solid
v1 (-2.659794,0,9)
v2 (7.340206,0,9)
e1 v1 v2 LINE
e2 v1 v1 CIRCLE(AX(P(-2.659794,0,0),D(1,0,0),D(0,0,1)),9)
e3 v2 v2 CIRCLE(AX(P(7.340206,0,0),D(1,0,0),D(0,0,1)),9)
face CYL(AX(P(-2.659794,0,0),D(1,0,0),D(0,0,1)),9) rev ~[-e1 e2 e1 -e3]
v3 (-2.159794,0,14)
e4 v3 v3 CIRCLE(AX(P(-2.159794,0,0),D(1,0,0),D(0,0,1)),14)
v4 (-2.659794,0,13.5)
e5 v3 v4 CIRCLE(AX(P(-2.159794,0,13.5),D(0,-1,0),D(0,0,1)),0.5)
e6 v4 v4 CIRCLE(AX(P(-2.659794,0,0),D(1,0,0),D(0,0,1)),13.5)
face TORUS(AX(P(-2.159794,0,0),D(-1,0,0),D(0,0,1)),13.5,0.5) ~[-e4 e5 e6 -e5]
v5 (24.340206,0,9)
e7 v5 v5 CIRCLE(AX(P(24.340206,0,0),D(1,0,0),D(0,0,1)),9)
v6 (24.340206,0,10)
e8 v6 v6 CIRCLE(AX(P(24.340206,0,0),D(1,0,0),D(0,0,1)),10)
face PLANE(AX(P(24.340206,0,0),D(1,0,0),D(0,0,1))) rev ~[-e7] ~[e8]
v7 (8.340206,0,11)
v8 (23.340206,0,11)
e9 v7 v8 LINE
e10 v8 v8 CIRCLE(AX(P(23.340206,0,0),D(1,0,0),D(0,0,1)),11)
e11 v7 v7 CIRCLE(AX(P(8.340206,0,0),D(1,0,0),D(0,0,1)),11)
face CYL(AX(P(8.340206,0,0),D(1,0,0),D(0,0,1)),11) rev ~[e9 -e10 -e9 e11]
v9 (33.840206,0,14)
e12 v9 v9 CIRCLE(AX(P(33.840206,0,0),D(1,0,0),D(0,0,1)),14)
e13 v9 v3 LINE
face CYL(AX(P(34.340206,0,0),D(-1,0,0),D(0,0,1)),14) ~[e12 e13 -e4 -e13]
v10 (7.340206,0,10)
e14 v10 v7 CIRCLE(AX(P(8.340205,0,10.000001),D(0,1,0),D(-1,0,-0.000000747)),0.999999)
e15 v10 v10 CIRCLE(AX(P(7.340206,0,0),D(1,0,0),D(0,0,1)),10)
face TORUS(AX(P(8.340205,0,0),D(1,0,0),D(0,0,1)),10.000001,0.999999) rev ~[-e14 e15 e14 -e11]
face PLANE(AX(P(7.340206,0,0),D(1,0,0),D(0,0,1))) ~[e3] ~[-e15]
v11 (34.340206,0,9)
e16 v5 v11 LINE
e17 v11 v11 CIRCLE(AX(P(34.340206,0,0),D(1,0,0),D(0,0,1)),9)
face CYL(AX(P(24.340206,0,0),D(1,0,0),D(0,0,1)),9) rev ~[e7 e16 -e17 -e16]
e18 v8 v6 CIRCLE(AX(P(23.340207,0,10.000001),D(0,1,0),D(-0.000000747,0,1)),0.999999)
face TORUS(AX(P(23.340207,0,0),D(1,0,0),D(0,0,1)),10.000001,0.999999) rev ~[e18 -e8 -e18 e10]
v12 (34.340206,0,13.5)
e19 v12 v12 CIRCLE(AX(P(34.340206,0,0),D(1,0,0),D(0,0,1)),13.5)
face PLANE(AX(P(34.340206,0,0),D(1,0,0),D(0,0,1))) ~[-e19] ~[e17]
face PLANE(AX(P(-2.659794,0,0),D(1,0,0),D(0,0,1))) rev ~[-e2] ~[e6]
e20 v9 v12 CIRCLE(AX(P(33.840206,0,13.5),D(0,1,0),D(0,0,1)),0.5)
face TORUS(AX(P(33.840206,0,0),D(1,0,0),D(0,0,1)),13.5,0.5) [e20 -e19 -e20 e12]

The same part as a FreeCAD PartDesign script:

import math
import FreeCAD as App
import Part
import Sketcher
from FreeCAD import Vector


def edges_at(feature, points):
    """Names of the edges that pass closest to the given points."""
    edges = feature.Shape.Edges
    near = lambda p: min(range(len(edges)), key=lambda i: edges[i].distToShape(Part.Vertex(*p))[0])
    return sorted({f"Edge{near(p) + 1}" for p in points})

doc = App.newDocument("Part")
params = doc.addObject("Spreadsheet::Sheet", "Params")
for row, (alias, value) in enumerate([
    ("sketch1_radius", "0.999999 mm"),
    ("sketch1_width", "37 mm"),
    ("sketch1_width2", "10 mm"),
    ("sketch1_height", "5 mm"),
    ("sketch1_height2", "1 mm"),
    ("revolution_angle", "360 deg"),
    ("fillet_radius", "0.5 mm"),
], start=1):
    params.set(f"A{row}", alias)
    params.set(f"B{row}", "=" + value)
    params.setAlias(f"B{row}", alias)

body = doc.addObject("PartDesign::Body", "Body")

sketch1 = body.newObject("Sketcher::SketchObject", "Sketch")
sketch1.AttachmentSupport = (doc.getObject("XZ_Plane"), [""])
sketch1.MapMode = "FlatFace"
sketch1.addGeometry([
    Part.LineSegment(Vector(34.3, 14, 0), Vector(-2.7, 14, 0)),
    Part.LineSegment(Vector(-2.7, 14, 0), Vector(-2.7, 9, 0)),
    Part.LineSegment(Vector(-2.7, 9, 0), Vector(7.3, 9, 0)),
    Part.LineSegment(Vector(7.3, 9, 0), Vector(7.3, 10, 0)),
    Part.ArcOfCircle(Part.Circle(Vector(8.3, 10, 0), Vector(0, 0, 1), 1), math.radians(90), math.radians(180)),
    Part.LineSegment(Vector(8.3, 11, 0), Vector(23.3, 11, 0)),
    Part.ArcOfCircle(Part.Circle(Vector(23.3, 10, 0), Vector(0, 0, 1), 1), math.radians(0), math.radians(90)),
    Part.LineSegment(Vector(24.3, 10, 0), Vector(24.3, 9, 0)),
    Part.LineSegment(Vector(24.3, 9, 0), Vector(34.3, 9, 0)),
    Part.LineSegment(Vector(34.3, 9, 0), Vector(34.3, 14, 0)),
], False)
sketch1.addConstraint([
    Sketcher.Constraint("Coincident", 0, 2, 1, 1),
    Sketcher.Constraint("Coincident", 1, 2, 2, 1),
    Sketcher.Constraint("Coincident", 2, 2, 3, 1),
    Sketcher.Constraint("Tangent", 3, 2, 4, 2),
    Sketcher.Constraint("Tangent", 4, 1, 5, 1),
    Sketcher.Constraint("Tangent", 5, 2, 6, 2),
    Sketcher.Constraint("Tangent", 6, 1, 7, 1),
    Sketcher.Constraint("Coincident", 7, 2, 8, 1),
    Sketcher.Constraint("Coincident", 8, 2, 9, 1),
    Sketcher.Constraint("Coincident", 9, 2, 0, 1),
    Sketcher.Constraint("Horizontal", 0),
    Sketcher.Constraint("Vertical", 1),
    Sketcher.Constraint("Horizontal", 2),
    Sketcher.Constraint("Vertical", 3),
    Sketcher.Constraint("Horizontal", 5),
    Sketcher.Constraint("Vertical", 7),
    Sketcher.Constraint("Horizontal", 8),
    Sketcher.Constraint("Vertical", 9),
    Sketcher.Constraint("Equal", 4, 6),
    Sketcher.Constraint("Horizontal", 2, 2, 7, 2),
    Sketcher.Constraint("Equal", 2, 8),
    Sketcher.Constraint("Radius", 4, 0.999999),
    Sketcher.Constraint("DistanceX", 0, 2, 0, 1, 37.0),
    Sketcher.Constraint("DistanceX", 2, 1, 2, 2, 10.0),
    Sketcher.Constraint("DistanceY", 1, 2, 1, 1, 5.0),
    Sketcher.Constraint("DistanceY", 3, 1, 3, 2, 1.0),
    Sketcher.Constraint("DistanceY", -1, 1, 4, 3, 10.000001),
    Sketcher.Constraint("DistanceX", -1, 1, 4, 3, 8.340205),
])
sketch1.setExpression("Constraints[21]", "Params.sketch1_radius")
sketch1.setExpression("Constraints[22]", "Params.sketch1_width")
sketch1.setExpression("Constraints[23]", "Params.sketch1_width2")
sketch1.setExpression("Constraints[24]", "Params.sketch1_height")
sketch1.setExpression("Constraints[25]", "Params.sketch1_height2")
revolution = body.newObject("PartDesign::Revolution", "Revolution")
revolution.Profile = sketch1
revolution.ReferenceAxis = (sketch1, ["H_Axis"])
revolution.setExpression("Angle", "Params.revolution_angle")
doc.recompute()

fillet = body.newObject("PartDesign::Fillet", "Fillet")
fillet.Base = (revolution, edges_at(revolution, [(-2.66, 0, -14), (34.34, 0, -14)]))
fillet.setExpression("Radius", "Params.fillet_radius")

doc.recompute()
